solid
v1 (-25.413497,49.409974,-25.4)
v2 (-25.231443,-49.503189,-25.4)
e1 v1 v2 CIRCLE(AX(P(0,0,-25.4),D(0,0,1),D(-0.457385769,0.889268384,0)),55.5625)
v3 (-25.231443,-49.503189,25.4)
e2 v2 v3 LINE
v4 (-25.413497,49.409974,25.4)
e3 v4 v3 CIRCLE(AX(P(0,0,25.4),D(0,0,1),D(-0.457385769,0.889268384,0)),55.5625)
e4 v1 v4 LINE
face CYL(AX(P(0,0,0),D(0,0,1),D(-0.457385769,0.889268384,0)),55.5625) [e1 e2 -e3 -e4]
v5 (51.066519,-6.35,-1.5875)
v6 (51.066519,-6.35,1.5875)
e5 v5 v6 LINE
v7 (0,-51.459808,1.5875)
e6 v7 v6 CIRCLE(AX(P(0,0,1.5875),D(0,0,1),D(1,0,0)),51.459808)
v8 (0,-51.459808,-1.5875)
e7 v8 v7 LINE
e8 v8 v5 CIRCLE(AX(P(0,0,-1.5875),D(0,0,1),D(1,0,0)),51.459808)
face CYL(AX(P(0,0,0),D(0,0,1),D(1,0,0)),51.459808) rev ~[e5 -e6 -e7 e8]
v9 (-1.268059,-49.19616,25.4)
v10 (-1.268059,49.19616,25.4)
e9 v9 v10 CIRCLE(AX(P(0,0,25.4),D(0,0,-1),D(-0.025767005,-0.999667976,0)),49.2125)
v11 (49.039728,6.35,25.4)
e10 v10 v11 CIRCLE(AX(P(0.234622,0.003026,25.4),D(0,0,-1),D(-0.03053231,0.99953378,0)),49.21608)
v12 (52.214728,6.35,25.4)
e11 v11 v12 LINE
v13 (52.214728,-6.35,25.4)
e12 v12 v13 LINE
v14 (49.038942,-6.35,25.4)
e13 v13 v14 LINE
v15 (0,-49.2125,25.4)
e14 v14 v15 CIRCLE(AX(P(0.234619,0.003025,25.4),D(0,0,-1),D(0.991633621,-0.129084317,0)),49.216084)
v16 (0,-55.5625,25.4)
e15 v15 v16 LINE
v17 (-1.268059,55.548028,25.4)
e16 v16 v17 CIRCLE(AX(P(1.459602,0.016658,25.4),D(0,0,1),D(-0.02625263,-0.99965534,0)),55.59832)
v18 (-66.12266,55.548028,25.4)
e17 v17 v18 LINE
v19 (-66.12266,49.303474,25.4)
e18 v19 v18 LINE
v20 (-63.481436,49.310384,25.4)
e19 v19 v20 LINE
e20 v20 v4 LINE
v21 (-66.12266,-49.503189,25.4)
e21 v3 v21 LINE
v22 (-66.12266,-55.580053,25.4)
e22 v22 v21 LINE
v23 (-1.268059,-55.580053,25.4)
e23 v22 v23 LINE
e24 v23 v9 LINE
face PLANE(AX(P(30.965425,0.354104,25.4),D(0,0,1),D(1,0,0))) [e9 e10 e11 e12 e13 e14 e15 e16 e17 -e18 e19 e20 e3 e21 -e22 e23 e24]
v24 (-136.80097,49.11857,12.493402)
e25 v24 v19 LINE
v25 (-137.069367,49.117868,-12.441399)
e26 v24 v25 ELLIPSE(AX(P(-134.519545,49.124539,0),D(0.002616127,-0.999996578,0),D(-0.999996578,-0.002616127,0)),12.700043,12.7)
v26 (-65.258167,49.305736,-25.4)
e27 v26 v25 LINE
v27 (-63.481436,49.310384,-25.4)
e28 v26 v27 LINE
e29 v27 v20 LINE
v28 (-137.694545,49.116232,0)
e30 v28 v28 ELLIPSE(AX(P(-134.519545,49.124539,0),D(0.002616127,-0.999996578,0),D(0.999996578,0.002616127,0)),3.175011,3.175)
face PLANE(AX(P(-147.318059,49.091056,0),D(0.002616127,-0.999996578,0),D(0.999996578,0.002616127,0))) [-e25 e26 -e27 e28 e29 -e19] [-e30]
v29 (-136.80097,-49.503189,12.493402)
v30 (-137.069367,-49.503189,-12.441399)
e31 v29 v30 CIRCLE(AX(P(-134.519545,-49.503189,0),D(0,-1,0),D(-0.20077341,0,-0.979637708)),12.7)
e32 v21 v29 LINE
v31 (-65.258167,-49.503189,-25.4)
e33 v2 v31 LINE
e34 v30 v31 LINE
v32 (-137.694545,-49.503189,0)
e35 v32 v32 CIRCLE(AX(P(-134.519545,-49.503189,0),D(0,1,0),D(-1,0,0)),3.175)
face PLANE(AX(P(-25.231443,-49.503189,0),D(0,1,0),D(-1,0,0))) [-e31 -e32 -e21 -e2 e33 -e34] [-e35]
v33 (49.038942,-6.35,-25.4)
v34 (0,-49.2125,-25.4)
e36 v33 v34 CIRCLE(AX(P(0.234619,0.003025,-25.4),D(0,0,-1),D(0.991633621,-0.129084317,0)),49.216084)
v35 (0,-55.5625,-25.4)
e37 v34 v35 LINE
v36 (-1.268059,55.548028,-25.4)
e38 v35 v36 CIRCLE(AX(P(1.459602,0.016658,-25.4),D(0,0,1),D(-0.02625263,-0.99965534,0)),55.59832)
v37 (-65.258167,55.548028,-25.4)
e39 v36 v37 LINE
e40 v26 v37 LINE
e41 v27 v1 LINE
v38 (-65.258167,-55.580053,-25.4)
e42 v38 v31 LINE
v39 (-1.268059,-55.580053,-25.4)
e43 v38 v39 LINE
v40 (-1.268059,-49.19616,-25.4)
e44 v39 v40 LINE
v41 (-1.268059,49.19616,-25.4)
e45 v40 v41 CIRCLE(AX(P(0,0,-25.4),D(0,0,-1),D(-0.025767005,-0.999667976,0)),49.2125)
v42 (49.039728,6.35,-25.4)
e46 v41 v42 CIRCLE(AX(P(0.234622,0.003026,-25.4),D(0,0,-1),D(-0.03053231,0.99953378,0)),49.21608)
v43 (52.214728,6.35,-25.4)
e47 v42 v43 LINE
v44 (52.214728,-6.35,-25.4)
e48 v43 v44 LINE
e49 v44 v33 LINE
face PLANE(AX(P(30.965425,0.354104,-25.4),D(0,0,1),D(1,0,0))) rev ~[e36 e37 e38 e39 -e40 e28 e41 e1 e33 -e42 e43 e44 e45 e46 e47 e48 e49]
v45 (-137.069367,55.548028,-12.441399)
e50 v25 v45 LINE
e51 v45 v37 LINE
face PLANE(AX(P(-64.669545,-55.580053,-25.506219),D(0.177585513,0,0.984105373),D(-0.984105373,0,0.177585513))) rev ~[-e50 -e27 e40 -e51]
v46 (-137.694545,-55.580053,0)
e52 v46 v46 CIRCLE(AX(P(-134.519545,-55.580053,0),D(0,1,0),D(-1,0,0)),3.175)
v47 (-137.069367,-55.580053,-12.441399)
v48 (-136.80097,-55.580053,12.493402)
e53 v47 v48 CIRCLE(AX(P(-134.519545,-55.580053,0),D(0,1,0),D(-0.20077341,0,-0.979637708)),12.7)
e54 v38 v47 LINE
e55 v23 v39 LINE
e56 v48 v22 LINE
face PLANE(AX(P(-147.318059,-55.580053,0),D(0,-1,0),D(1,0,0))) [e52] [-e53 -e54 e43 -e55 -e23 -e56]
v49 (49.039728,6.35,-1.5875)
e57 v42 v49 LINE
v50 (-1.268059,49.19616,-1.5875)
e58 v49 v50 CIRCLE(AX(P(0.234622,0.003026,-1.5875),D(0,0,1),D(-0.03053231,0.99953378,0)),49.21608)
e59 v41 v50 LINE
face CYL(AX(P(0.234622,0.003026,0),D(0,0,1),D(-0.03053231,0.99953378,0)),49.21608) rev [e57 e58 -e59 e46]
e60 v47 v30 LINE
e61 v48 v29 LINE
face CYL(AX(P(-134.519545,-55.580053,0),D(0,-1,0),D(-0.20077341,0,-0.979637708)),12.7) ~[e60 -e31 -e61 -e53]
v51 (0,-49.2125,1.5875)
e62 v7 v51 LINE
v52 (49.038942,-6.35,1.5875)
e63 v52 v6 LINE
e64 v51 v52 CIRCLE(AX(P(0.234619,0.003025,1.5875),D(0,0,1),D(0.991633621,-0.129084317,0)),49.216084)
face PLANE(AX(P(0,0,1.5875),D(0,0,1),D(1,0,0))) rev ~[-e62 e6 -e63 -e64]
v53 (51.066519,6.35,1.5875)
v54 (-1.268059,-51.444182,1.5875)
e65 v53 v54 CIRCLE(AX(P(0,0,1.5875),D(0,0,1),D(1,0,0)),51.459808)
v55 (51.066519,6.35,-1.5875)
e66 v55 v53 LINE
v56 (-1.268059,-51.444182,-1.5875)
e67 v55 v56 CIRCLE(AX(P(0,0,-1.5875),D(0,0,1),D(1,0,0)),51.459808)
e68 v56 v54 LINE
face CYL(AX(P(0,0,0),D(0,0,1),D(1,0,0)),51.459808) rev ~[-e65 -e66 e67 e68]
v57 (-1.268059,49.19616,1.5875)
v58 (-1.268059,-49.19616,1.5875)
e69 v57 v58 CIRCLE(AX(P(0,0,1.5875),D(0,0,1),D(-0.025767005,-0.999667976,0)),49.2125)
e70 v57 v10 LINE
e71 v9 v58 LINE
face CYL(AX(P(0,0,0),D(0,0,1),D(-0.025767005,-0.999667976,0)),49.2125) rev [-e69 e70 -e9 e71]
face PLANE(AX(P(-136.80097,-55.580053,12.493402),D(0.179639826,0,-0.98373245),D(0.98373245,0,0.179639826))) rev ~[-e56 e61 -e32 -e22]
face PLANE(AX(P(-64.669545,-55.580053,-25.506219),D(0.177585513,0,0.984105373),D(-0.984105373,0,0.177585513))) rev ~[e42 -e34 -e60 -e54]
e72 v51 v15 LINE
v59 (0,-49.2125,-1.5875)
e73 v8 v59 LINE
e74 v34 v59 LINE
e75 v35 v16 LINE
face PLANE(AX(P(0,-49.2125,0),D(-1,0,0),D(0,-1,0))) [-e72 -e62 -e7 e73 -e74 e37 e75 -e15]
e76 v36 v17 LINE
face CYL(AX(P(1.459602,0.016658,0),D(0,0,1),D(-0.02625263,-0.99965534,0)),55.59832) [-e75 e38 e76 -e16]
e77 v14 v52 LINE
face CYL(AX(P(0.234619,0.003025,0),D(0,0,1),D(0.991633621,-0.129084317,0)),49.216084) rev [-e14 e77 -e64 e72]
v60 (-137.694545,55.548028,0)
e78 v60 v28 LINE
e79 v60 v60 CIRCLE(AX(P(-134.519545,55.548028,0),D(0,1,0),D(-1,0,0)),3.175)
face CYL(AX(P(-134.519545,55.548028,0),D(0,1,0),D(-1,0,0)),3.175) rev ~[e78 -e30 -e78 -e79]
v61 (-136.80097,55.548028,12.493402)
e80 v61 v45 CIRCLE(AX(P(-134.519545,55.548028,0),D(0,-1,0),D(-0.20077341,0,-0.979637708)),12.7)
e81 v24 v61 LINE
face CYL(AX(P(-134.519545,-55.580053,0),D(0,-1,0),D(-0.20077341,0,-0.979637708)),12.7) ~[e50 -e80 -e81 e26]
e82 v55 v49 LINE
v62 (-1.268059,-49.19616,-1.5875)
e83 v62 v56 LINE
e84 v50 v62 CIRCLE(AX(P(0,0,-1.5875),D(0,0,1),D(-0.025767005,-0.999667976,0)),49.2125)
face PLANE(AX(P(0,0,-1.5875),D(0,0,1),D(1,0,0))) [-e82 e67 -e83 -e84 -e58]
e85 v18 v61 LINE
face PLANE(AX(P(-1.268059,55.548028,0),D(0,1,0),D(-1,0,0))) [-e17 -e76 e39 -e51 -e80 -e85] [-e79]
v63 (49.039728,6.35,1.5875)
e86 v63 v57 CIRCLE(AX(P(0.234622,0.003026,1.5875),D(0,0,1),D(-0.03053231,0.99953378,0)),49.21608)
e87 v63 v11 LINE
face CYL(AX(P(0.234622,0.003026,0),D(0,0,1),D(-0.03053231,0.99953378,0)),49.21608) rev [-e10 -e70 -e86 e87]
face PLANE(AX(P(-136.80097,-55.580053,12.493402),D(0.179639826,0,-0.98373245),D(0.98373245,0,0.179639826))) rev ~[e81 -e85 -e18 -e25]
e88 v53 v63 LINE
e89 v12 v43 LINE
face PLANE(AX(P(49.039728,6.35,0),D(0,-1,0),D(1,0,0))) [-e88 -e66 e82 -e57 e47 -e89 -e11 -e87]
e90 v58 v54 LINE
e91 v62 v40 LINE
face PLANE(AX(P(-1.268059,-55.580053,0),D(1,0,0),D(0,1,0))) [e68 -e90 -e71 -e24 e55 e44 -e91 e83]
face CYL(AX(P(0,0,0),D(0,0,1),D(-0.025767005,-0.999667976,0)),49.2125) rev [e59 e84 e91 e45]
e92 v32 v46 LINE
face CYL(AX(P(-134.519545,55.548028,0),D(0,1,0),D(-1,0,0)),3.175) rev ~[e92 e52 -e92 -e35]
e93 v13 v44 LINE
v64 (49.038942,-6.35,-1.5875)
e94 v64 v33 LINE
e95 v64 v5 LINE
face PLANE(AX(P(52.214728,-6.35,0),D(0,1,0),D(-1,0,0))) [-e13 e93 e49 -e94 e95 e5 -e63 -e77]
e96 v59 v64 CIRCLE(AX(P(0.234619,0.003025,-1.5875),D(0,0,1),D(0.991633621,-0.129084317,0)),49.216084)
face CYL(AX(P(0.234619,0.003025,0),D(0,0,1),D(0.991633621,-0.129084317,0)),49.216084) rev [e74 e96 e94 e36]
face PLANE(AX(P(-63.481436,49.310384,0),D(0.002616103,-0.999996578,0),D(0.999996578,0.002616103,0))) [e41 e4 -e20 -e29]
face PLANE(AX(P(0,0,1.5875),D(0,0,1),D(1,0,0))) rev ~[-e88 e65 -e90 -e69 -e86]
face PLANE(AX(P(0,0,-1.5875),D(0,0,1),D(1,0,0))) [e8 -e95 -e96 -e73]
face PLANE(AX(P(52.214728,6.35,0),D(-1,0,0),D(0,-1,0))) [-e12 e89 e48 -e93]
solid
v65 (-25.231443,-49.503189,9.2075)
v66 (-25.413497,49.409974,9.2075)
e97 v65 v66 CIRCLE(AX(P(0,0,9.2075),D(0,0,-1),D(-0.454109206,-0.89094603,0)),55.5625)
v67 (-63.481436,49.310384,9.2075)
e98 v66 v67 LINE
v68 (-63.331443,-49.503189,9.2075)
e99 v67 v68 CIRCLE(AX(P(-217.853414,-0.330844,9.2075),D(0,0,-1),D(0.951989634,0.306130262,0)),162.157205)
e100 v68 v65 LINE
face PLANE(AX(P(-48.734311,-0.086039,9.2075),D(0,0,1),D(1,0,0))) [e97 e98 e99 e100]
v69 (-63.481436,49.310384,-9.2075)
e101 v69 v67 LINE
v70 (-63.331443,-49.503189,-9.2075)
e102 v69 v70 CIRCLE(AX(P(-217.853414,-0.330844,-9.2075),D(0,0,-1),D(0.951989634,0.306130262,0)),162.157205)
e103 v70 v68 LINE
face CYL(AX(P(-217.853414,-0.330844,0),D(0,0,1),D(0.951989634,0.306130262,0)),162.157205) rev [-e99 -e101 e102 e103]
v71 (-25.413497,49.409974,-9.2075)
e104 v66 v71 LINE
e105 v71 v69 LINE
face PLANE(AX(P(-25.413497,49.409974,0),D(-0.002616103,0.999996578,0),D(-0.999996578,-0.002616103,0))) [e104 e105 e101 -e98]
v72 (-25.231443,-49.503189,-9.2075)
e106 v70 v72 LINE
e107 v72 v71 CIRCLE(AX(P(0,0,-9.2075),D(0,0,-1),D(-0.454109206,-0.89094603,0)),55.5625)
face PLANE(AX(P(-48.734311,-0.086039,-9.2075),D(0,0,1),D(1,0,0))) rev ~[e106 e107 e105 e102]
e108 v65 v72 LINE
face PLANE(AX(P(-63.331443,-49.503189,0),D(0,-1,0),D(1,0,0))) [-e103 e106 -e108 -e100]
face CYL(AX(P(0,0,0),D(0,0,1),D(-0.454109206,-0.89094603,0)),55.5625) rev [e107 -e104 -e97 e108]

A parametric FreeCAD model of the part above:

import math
import FreeCAD as App
import Part
import Sketcher

V = App.Vector
Q = App.Units.Quantity

doc = App.newDocument("Part")
body = doc.addObject("PartDesign::Body", "Body")

# Sketch on XY plane
sketch1 = body.newObject("Sketcher::SketchObject", "Sketch")
sketch1.AttachmentSupport = (doc.getObject("XY_Plane"), [""])
sketch1.MapMode = "FlatFace"
sketch1.addGeometry(Part.ArcOfCircle(Part.Circle(V(0, 0, 0), V(0, 0, 1), 49), math.radians(91), math.radians(269)), False)
sketch1.addGeometry(Part.LineSegment(V(-1, 49, 0), V(-1, 56, 0)), False)
sketch1.addGeometry(Part.LineSegment(V(-1, 56, 0), V(-147, 56, 0)), False)
sketch1.addGeometry(Part.LineSegment(V(-147, 56, 0), V(-147, 49, 0)), False)
sketch1.addGeometry(Part.LineSegment(V(-147, 49, 0), V(-63, 49, 0)), False)
sketch1.addGeometry(Part.LineSegment(V(-63, 49, 0), V(-25, 49, 0)), False)
sketch1.addGeometry(Part.ArcOfCircle(Part.Circle(V(0, 0, 0), V(0, 0, 1), 56), math.radians(117), math.radians(243)), False)
sketch1.addGeometry(Part.LineSegment(V(-25, -50, 0), V(-147, -50, 0)), False)
sketch1.addGeometry(Part.LineSegment(V(-147, -50, 0), V(-147, -56, 0)), False)
sketch1.addGeometry(Part.LineSegment(V(-147, -56, 0), V(-1, -56, 0)), False)
sketch1.addGeometry(Part.LineSegment(V(-1, -56, 0), V(-1, -49, 0)), False)
sketch1.addConstraint(Sketcher.Constraint("Coincident", 0, 1, 1, 1))
sketch1.addConstraint(Sketcher.Constraint("Coincident", 1, 2, 2, 1))
sketch1.addConstraint(Sketcher.Constraint("Coincident", 2, 2, 3, 1))
sketch1.addConstraint(Sketcher.Constraint("Coincident", 3, 2, 4, 1))
sketch1.addConstraint(Sketcher.Constraint("Coincident", 4, 2, 5, 1))
sketch1.addConstraint(Sketcher.Constraint("Coincident", 5, 2, 6, 1))
sketch1.addConstraint(Sketcher.Constraint("Coincident", 6, 2, 7, 1))
sketch1.addConstraint(Sketcher.Constraint("Coincident", 7, 2, 8, 1))
sketch1.addConstraint(Sketcher.Constraint("Coincident", 8, 2, 9, 1))
sketch1.addConstraint(Sketcher.Constraint("Coincident", 9, 2, 10, 1))
sketch1.addConstraint(Sketcher.Constraint("Coincident", 10, 2, 0, 2))
sketch1.addConstraint(Sketcher.Constraint("Vertical", 1))
sketch1.addConstraint(Sketcher.Constraint("Horizontal", 2))
sketch1.addConstraint(Sketcher.Constraint("Vertical", 3))
sketch1.addConstraint(Sketcher.Constraint("Horizontal", 7))
sketch1.addConstraint(Sketcher.Constraint("Vertical", 8))
sketch1.addConstraint(Sketcher.Constraint("Horizontal", 9))
sketch1.addConstraint(Sketcher.Constraint("Vertical", 10))
sketch1.addConstraint(Sketcher.Constraint("Coincident", 0, 3, -1, 1))
sketch1.addConstraint(Sketcher.Constraint("Coincident", 6, 3, -1, 1))
sketch1.addConstraint(Sketcher.Constraint("Parallel", 4, 5))
sketch1.addConstraint(Sketcher.Constraint("Vertical", 3, 2, 7, 2))
sketch1.addConstraint(Sketcher.Constraint("Vertical", 1, 2, 9, 2))
sketch1.addConstraint(Sketcher.Constraint("Radius", 0, Q("1.9375 in")))
sketch1.addConstraint(Sketcher.Constraint("Radius", 6, Q("2.1875 in")))
sketch1.addConstraint(Sketcher.Constraint("DistanceX", 2, 2, 2, 1, Q("5.75 in")))
sketch1.addConstraint(Sketcher.Constraint("DistanceY", 1, 1, 1, 2, Q("6.351868 mm")))
sketch1.addConstraint(Sketcher.Constraint("Distance", 4, Q("83.83691 mm")))
sketch1.addConstraint(Sketcher.Constraint("Distance", 5, Q("38.068069 mm")))
sketch1.addConstraint(Sketcher.Constraint("DistanceX", 7, 2, 7, 1, Q("122.086616 mm")))
sketch1.addConstraint(Sketcher.Constraint("DistanceY", 3, 2, 3, 1, Q("6.456972 mm")))
sketch1.addConstraint(Sketcher.Constraint("DistanceY", 8, 2, 8, 1, Q("6.076864 mm")))
sketch1.addConstraint(Sketcher.Constraint("DistanceY", 10, 1, 10, 2, Q("6.383893 mm")))
pad1 = body.newObject("PartDesign::Pad", "Pad")
pad1.Profile = sketch1
pad1.Length = Q("2 in")
pad1.Midplane = True

# Sketch on XY plane
sketch2 = body.newObject("Sketcher::SketchObject", "Sketch001")
sketch2.AttachmentSupport = (doc.getObject("XY_Plane"), [""])
sketch2.MapMode = "FlatFace"
sketch2.addGeometry(Part.ArcOfCircle(Part.Circle(V(0.2, 0, 0), V(0, 0, 1), 49.2), math.radians(-90), math.radians(-7)), False)
sketch2.addGeometry(Part.LineSegment(V(0, -49.2, 0), V(0, -55.6, 0)), False)
sketch2.addGeometry(Part.ArcOfCircle(Part.Circle(V(1.5, 0, 0), V(0, 0, 1), 55.6), math.radians(-92), math.radians(93)), False)
sketch2.addGeometry(Part.LineSegment(V(-1.3, 55.5, 0), V(-1.3, 49.2, 0)), False)
sketch2.addGeometry(Part.ArcOfCircle(Part.Circle(V(0.2, 0, 0), V(0, 0, 1), 49.2), math.radians(7), math.radians(92)), False)
sketch2.addGeometry(Part.LineSegment(V(49, 6.3, 0), V(52.2, 6.3, 0)), False)
sketch2.addGeometry(Part.LineSegment(V(52.2, 6.3, 0), V(52.2, -6.3, 0)), False)
sketch2.addGeometry(Part.LineSegment(V(52.2, -6.3, 0), V(49, -6.3, 0)), False)
sketch2.addConstraint(Sketcher.Constraint("Coincident", 0, 1, 1, 1))
sketch2.addConstraint(Sketcher.Constraint("Coincident", 1, 2, 2, 1))
sketch2.addConstraint(Sketcher.Constraint("Coincident", 2, 2, 3, 1))
sketch2.addConstraint(Sketcher.Constraint("Coincident", 3, 2, 4, 2))
sketch2.addConstraint(Sketcher.Constraint("Coincident", 4, 1, 5, 1))
sketch2.addConstraint(Sketcher.Constraint("Coincident", 5, 2, 6, 1))
sketch2.addConstraint(Sketcher.Constraint("Coincident", 6, 2, 7, 1))
sketch2.addConstraint(Sketcher.Constraint("Coincident", 7, 2, 0, 2))
sketch2.addConstraint(Sketcher.Constraint("Vertical", 1))
sketch2.addConstraint(Sketcher.Constraint("Vertical", 3))
sketch2.addConstraint(Sketcher.Constraint("Horizontal", 5))
sketch2.addConstraint(Sketcher.Constraint("Vertical", 6))
sketch2.addConstraint(Sketcher.Constraint("Horizontal", 7))
sketch2.addConstraint(Sketcher.Constraint("Coincident", 4, 3, 0, 3))
sketch2.addConstraint(Sketcher.Constraint("PointOnObject", 0, 1, -2))
sketch2.addConstraint(Sketcher.Constraint("DistanceY", 6, 2, 6, 1, Q("0.5 in")))
sketch2.addConstraint(Sketcher.Constraint("DistanceY", 1, 2, 1, 1, Q("0.25 in")))
sketch2.addConstraint(Sketcher.Constraint("DistanceX", 5, 1, 5, 2, Q("0.125 in")))
sketch2.addConstraint(Sketcher.Constraint("DistanceY", -1, 1, 4, 1, Q("0.25 in")))
sketch2.addConstraint(Sketcher.Constraint("DistanceY", 0, 1, -1, 1, Q("1.9375 in")))
sketch2.addConstraint(Sketcher.Constraint("Radius", 2, Q("55.59832 mm")))
sketch2.addConstraint(Sketcher.Constraint("Radius", 4, Q("49.21608 mm")))
sketch2.addConstraint(Sketcher.Constraint("Radius", 0, Q("49.216084 mm")))
sketch2.addConstraint(Sketcher.Constraint("DistanceY", 3, 2, 3, 1, Q("6.351868 mm")))
sketch2.addConstraint(Sketcher.Constraint("DistanceX", -1, 1, 0, 3, Q("0.234619 mm")))
sketch2.addConstraint(Sketcher.Constraint("DistanceX", 2, 2, -1, 1, Q("1.268059 mm")))
pad2 = body.newObject("PartDesign::Pad", "Pad001")
pad2.Profile = sketch2
pad2.Length = Q("2 in")
pad2.Midplane = True

# Sketch on XZ plane
sketch3 = body.newObject("Sketcher::SketchObject", "Sketch002")
sketch3.AttachmentSupport = (doc.getObject("XZ_Plane"), [""])
sketch3.MapMode = "FlatFace"
sketch3.AttachmentOffset = App.Placement(V(0, 0, 55.580053), App.Rotation())
sketch3.addGeometry(Part.ArcOfCircle(Part.Circle(V(-135, 0, 0), V(0, 0, 1), 13), math.radians(100), math.radians(258)), False)
sketch3.addGeometry(Part.LineSegment(V(-137, 12, 0), V(-65, 26, 0)), False)
sketch3.addGeometry(Part.LineSegment(V(-65, 26, 0), V(-147, 26, 0)), False)
sketch3.addGeometry(Part.LineSegment(V(-147, 26, 0), V(-147, -26, 0)), False)
sketch3.addGeometry(Part.LineSegment(V(-147, -26, 0), V(-65, -26, 0)), False)
sketch3.addGeometry(Part.LineSegment(V(-65, -26, 0), V(-137, -12, 0)), False)
sketch3.addConstraint(Sketcher.Constraint("Tangent", 0, 1, 1, 1))
sketch3.addConstraint(Sketcher.Constraint("Coincident", 1, 2, 2, 1))
sketch3.addConstraint(Sketcher.Constraint("Coincident", 2, 2, 3, 1))
sketch3.addConstraint(Sketcher.Constraint("Coincident", 3, 2, 4, 1))
sketch3.addConstraint(Sketcher.Constraint("Coincident", 4, 2, 5, 1))
sketch3.addConstraint(Sketcher.Constraint("Coincident", 5, 2, 0, 2))
sketch3.addConstraint(Sketcher.Constraint("Horizontal", 2))
sketch3.addConstraint(Sketcher.Constraint("Vertical", 3))
sketch3.addConstraint(Sketcher.Constraint("Horizontal", 4))
sketch3.addConstraint(Sketcher.Constraint("PointOnObject", 0, 3, -1))
sketch3.addConstraint(Sketcher.Constraint("Vertical", 1, 2, 4, 2))
sketch3.addConstraint(Sketcher.Constraint("Radius", 0, Q("0.5 in")))
sketch3.addConstraint(Sketcher.Constraint("DistanceX", 0, 3, 1, 2, Q("2.75 in")))
sketch3.addConstraint(Sketcher.Constraint("DistanceX", 2, 2, -1, 1, Q("147.4055 mm")))
sketch3.addConstraint(Sketcher.Constraint("DistanceY", 5, 2, -1, 1, Q("12.441399 mm")))
sketch3.addConstraint(Sketcher.Constraint("DistanceY", 5, 2, 0, 1, Q("24.934801 mm")))
sketch3.addConstraint(Sketcher.Constraint("DistanceX", 2, 2, 2, 1, Q("82.735955 mm")))
sketch3.addConstraint(Sketcher.Constraint("DistanceY", 3, 2, 3, 1, Q("51.171573 mm")))
pocket1 = body.newObject("PartDesign::Pocket", "Pocket")
pocket1.Profile = sketch3
pocket1.Length = Q("4.75 in")

# Sketch on XZ plane
sketch4 = body.newObject("Sketcher::SketchObject", "Sketch003")
sketch4.AttachmentSupport = (doc.getObject("XZ_Plane"), [""])
sketch4.MapMode = "FlatFace"
sketch4.AttachmentOffset = App.Placement(V(0, 0, -55.548028), App.Rotation())
sketch4.addGeometry(Part.Circle(V(-134.5, 0, 0), V(0, 0, 1), 3.2), False)
sketch4.addConstraint(Sketcher.Constraint("PointOnObject", 0, 3, -1))
sketch4.addConstraint(Sketcher.Constraint("Diameter", 0, Q("0.25 in")))
sketch4.addConstraint(Sketcher.Constraint("DistanceX", 0, 3, -1, 1, Q("134.519545 mm")))
pocket2 = body.newObject("PartDesign::Pocket", "Pocket001")
pocket2.Profile = sketch4
pocket2.Length = Q("4.5 in")
pocket2.Reversed = True

# Sketch on XY plane
sketch5 = body.newObject("Sketcher::SketchObject", "Sketch004")
sketch5.AttachmentSupport = (doc.getObject("XY_Plane"), [""])
sketch5.MapMode = "FlatFace"
sketch5.addGeometry(Part.Circle(V(0, 0, 0), V(0, 0, 1), 51), False)
sketch5.addConstraint(Sketcher.Constraint("Coincident", 0, 3, -1, 1))
sketch5.addConstraint(Sketcher.Constraint("Diameter", 0, Q("102.919616 mm")))
pocket3 = body.newObject("PartDesign::Pocket", "Pocket002")
pocket3.Profile = sketch5
pocket3.Length = Q("0.125 in")
pocket3.Midplane = True
body2 = doc.addObject("PartDesign::Body", "Body001")

# Sketch on XY plane
sketch6 = body2.newObject("Sketcher::SketchObject", "Sketch005")
sketch6.AttachmentSupport = (doc.getObject("XY_Plane001"), [""])
sketch6.MapMode = "FlatFace"
sketch6.addGeometry(Part.LineSegment(V(-25, 49, 0), V(-63, 49, 0)), False)
sketch6.addGeometry(Part.ArcOfCircle(Part.Circle(V(-218, 0, 0), V(0, 0, 1), 162), math.radians(-18), math.radians(18)), False)
sketch6.addGeometry(Part.LineSegment(V(-63, -50, 0), V(-25, -50, 0)), False)
sketch6.addGeometry(Part.ArcOfCircle(Part.Circle(V(0, 0, 0), V(0, 0, 1), 56), math.radians(117), math.radians(243)), False)
sketch6.addConstraint(Sketcher.Constraint("Coincident", 0, 2, 1, 2))
sketch6.addConstraint(Sketcher.Constraint("Coincident", 1, 1, 2, 1))
sketch6.addConstraint(Sketcher.Constraint("Coincident", 2, 2, 3, 2))
sketch6.addConstraint(Sketcher.Constraint("Coincident", 3, 1, 0, 1))
sketch6.addConstraint(Sketcher.Constraint("Horizontal", 2))
sketch6.addConstraint(Sketcher.Constraint("Coincident", 3, 3, -1, 1))
sketch6.addConstraint(Sketcher.Constraint("DistanceX", 2, 1, 2, 2, Q("1.5 in")))
sketch6.addConstraint(Sketcher.Constraint("Radius", 3, Q("2.1875 in")))
sketch6.addConstraint(Sketcher.Constraint("Radius", 1, Q("162.157205 mm")))
sketch6.addConstraint(Sketcher.Constraint("DistanceY", 1, 3, 3, 1, Q("1.9582999 in")))
sketch6.addConstraint(Sketcher.Constraint("Distance", 0, Q("38.068069 mm")))
sketch6.addConstraint(Sketcher.Constraint("DistanceY", 2, 2, -1, 1, Q("49.503189 mm")))
sketch6.addConstraint(Sketcher.Constraint("DistanceX", 1, 3, 2, 2, Q("192.621971 mm")))
pad3 = body2.newObject("PartDesign::Pad", "Pad002")
pad3.Profile = sketch6
pad3.Length = Q("0.725 in")
pad3.Midplane = True

doc.recompute()
